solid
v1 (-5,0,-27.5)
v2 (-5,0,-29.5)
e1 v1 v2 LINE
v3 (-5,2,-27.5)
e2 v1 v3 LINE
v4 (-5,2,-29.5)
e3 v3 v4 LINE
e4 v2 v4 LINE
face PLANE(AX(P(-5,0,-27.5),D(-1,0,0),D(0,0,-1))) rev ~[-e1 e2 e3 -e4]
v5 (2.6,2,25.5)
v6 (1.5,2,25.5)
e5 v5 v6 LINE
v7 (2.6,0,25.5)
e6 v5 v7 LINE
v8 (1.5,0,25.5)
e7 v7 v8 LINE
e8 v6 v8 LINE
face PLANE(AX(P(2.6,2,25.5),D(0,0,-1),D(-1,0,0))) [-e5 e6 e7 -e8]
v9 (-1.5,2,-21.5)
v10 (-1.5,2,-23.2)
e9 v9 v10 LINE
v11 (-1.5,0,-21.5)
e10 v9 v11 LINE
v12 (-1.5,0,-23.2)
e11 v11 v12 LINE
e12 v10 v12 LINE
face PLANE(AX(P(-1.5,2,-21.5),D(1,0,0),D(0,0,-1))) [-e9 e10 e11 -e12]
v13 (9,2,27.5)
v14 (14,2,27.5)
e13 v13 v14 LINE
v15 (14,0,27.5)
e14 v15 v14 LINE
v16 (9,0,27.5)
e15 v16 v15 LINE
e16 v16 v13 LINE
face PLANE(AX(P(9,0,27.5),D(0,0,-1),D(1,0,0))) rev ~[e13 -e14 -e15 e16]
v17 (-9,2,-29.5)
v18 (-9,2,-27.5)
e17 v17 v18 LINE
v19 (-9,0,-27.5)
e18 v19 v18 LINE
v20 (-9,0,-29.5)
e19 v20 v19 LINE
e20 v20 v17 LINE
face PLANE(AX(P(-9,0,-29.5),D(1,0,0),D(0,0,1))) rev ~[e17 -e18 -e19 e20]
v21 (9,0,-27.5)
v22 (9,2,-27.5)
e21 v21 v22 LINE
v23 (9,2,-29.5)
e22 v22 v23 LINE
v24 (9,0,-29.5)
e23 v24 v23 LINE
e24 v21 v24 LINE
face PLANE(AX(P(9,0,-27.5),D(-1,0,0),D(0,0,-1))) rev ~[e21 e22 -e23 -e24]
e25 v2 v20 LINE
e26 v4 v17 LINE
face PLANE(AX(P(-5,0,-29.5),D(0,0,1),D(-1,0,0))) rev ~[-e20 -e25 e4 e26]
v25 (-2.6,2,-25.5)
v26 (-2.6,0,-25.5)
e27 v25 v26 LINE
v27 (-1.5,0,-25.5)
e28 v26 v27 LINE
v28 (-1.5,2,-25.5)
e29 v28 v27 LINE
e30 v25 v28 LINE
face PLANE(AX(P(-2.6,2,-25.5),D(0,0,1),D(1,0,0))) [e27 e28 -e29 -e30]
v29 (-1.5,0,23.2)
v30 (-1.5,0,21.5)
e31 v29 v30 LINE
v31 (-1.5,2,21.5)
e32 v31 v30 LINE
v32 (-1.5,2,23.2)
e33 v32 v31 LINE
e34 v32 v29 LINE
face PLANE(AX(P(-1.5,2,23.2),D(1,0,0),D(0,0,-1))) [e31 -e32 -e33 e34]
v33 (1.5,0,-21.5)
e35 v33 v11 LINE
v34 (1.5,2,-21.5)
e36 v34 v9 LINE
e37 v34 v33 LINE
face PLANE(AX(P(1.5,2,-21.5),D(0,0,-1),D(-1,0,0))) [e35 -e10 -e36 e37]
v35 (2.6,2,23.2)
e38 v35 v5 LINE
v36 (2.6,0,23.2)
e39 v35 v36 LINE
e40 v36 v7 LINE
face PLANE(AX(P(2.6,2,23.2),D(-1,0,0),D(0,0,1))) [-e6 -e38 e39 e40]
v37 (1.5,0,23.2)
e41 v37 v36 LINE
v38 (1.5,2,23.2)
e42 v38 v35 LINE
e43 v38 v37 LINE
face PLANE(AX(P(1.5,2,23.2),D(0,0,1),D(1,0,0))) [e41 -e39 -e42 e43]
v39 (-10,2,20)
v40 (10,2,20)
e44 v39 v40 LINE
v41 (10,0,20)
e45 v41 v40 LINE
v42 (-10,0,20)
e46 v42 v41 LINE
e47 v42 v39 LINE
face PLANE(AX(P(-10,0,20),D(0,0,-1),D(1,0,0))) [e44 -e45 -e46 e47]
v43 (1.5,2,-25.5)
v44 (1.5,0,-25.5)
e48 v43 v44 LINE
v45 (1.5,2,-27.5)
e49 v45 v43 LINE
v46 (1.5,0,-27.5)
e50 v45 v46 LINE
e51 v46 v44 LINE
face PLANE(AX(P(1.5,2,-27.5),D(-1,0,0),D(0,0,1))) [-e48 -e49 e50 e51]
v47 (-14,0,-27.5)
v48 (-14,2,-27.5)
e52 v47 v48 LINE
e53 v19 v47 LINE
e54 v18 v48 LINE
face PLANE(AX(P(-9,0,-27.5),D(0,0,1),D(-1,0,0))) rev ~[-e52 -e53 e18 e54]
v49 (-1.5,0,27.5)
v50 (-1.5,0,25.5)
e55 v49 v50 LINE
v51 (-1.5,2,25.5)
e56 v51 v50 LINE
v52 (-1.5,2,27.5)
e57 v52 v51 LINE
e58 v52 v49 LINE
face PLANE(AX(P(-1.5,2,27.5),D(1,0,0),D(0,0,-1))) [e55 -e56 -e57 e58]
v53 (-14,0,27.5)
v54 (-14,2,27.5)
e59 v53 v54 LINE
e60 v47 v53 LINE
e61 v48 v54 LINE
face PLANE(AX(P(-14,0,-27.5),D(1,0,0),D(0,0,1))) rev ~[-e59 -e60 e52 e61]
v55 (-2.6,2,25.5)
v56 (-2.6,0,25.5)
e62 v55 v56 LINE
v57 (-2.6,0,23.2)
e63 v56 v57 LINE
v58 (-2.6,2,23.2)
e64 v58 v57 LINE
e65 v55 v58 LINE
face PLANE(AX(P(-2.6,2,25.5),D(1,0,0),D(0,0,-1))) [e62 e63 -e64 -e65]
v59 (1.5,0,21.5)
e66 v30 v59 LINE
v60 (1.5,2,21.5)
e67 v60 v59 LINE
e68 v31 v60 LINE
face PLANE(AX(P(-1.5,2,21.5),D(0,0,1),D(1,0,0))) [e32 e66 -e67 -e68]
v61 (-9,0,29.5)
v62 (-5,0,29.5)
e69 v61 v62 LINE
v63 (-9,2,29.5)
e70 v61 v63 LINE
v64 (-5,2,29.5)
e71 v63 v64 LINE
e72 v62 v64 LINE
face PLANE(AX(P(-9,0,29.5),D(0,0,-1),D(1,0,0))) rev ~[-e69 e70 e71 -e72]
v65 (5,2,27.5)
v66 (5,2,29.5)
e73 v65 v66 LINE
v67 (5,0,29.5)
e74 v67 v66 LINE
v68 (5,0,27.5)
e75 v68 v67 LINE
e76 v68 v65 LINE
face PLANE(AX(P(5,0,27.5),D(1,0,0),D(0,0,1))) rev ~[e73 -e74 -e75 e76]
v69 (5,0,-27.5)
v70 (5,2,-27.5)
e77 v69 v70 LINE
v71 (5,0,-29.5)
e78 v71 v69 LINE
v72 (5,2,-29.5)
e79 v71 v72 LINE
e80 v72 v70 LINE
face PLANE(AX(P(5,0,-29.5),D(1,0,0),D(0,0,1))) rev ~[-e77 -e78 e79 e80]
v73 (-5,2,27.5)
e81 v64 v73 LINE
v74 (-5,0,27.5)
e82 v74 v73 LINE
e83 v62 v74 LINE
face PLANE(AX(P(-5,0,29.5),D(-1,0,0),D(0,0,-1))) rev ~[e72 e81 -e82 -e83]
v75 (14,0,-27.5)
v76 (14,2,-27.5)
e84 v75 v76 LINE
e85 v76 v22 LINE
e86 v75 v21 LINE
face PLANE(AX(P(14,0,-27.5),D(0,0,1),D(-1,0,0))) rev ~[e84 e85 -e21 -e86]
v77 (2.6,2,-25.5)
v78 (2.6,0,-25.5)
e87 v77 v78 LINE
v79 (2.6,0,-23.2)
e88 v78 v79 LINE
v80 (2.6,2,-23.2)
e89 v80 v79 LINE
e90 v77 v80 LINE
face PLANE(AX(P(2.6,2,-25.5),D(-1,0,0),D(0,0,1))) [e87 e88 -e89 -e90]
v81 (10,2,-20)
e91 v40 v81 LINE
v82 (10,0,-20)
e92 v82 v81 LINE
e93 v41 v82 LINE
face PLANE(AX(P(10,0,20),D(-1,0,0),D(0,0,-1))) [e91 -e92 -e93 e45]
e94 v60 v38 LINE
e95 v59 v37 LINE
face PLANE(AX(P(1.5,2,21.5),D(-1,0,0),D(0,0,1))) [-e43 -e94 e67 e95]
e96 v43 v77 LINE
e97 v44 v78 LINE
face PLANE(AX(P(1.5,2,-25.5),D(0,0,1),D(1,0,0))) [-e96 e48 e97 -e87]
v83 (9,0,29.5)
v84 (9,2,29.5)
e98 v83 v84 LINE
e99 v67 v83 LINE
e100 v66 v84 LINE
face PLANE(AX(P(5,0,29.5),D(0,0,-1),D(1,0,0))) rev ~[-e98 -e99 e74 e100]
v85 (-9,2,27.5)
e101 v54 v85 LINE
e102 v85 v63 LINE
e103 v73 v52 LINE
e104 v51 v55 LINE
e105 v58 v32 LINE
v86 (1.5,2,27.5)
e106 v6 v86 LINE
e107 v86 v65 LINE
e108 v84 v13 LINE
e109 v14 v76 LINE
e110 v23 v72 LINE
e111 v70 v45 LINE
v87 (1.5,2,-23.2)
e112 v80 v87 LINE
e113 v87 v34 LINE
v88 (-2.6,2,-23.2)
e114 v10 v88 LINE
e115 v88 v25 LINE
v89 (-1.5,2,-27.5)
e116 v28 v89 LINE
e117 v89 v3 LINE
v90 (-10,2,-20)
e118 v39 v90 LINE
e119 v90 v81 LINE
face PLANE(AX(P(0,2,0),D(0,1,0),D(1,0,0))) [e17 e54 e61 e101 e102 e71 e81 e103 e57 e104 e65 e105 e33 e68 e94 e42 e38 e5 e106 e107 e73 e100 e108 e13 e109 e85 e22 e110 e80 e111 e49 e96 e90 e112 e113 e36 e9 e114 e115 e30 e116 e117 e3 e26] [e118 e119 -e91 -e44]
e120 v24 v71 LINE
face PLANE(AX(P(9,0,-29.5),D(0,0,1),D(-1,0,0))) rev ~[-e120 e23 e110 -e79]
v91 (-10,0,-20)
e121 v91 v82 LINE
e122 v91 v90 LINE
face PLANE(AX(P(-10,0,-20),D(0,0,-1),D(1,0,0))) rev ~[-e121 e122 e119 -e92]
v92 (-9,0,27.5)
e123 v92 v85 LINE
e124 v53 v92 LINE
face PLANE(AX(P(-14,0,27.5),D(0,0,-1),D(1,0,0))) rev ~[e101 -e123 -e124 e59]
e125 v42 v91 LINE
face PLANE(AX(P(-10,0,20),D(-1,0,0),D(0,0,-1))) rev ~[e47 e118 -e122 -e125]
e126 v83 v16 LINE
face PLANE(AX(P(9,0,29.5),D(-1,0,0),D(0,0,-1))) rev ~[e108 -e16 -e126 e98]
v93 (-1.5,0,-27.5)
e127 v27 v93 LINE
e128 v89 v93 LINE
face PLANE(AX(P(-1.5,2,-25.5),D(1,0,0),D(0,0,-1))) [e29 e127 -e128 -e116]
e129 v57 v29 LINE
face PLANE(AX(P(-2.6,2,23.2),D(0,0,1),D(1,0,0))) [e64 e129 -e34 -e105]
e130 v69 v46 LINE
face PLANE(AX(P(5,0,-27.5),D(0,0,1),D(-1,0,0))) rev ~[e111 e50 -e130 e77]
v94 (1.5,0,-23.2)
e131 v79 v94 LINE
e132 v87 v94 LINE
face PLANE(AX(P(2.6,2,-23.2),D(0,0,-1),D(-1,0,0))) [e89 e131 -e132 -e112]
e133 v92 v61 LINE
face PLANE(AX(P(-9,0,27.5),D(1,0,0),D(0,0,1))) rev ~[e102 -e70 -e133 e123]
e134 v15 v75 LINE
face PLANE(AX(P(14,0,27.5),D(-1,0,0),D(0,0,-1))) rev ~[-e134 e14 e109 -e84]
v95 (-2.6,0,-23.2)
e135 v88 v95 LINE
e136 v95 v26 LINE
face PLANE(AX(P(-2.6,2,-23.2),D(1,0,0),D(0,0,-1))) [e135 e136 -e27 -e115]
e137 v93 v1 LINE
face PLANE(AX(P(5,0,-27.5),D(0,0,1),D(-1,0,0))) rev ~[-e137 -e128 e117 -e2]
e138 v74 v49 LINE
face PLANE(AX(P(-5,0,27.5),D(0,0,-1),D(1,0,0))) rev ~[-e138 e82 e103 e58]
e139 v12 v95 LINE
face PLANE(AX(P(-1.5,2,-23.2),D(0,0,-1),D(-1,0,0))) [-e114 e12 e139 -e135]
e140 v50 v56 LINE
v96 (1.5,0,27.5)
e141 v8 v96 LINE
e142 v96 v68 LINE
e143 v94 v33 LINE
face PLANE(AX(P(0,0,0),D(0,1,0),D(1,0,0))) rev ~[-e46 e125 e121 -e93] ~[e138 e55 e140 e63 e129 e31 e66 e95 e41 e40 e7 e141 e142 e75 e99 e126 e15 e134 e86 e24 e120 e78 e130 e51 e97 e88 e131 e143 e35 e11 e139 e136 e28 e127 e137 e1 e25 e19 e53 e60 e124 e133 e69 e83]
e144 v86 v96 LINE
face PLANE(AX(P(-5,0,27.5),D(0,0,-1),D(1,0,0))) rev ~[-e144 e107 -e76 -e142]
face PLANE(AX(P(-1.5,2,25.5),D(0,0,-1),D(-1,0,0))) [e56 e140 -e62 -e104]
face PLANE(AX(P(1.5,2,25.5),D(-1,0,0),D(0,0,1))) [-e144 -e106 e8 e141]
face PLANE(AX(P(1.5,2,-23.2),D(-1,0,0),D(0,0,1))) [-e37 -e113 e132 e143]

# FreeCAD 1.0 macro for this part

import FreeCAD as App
import Part
import Sketcher

V = App.Vector
Q = App.Units.Quantity

doc = App.newDocument("Part")
body = doc.addObject("PartDesign::Body", "Body")

sketch1 = body.newObject("Sketcher::SketchObject", "Sketch")
sketch1.AttachmentSupport = (doc.getObject("XZ_Plane"), [""])
sketch1.MapMode = "FlatFace"
sketch1.addGeometry([
    Part.LineSegment(V(-14, 27.5, 0), V(-9, 27.5, 0)),
    Part.LineSegment(V(-9, 27.5, 0), V(-9, 29.5, 0)),
    Part.LineSegment(V(-9, 29.5, 0), V(-5, 29.5, 0)),
    Part.LineSegment(V(-5, 29.5, 0), V(-5, 27.5, 0)),
    Part.LineSegment(V(-5, 27.5, 0), V(5, 27.5, 0)),
    Part.LineSegment(V(5, 27.5, 0), V(5, 29.5, 0)),
    Part.LineSegment(V(5, 29.5, 0), V(9, 29.5, 0)),
    Part.LineSegment(V(9, 29.5, 0), V(9, 27.5, 0)),
    Part.LineSegment(V(9, 27.5, 0), V(14, 27.5, 0)),
    Part.LineSegment(V(14, 27.5, 0), V(14, -27.5, 0)),
    Part.LineSegment(V(14, -27.5, 0), V(9, -27.5, 0)),
    Part.LineSegment(V(9, -27.5, 0), V(9, -29.5, 0)),
    Part.LineSegment(V(9, -29.5, 0), V(5, -29.5, 0)),
    Part.LineSegment(V(5, -29.5, 0), V(5, -27.5, 0)),
    Part.LineSegment(V(5, -27.5, 0), V(-5, -27.5, 0)),
    Part.LineSegment(V(-5, -27.5, 0), V(-5, -29.5, 0)),
    Part.LineSegment(V(-5, -29.5, 0), V(-9, -29.5, 0)),
    Part.LineSegment(V(-9, -29.5, 0), V(-9, -27.5, 0)),
    Part.LineSegment(V(-9, -27.5, 0), V(-14, -27.5, 0)),
    Part.LineSegment(V(-14, -27.5, 0), V(-14, 27.5, 0)),
    Part.LineSegment(V(10, 20, 0), V(-10, 20, 0)),
    Part.LineSegment(V(-10, 20, 0), V(-10, -20, 0)),
    Part.LineSegment(V(-10, -20, 0), V(10, -20, 0)),
    Part.LineSegment(V(10, -20, 0), V(10, 20, 0)),
], False)
sketch1.addConstraint([
    Sketcher.Constraint("Coincident", 0, 2, 1, 1),
    Sketcher.Constraint("Coincident", 1, 2, 2, 1),
    Sketcher.Constraint("Coincident", 2, 2, 3, 1),
    Sketcher.Constraint("Coincident", 3, 2, 4, 1),
    Sketcher.Constraint("Coincident", 4, 2, 5, 1),
    Sketcher.Constraint("Coincident", 5, 2, 6, 1),
    Sketcher.Constraint("Coincident", 6, 2, 7, 1),
    Sketcher.Constraint("Coincident", 7, 2, 8, 1),
    Sketcher.Constraint("Coincident", 8, 2, 9, 1),
    Sketcher.Constraint("Coincident", 9, 2, 10, 1),
    Sketcher.Constraint("Coincident", 10, 2, 11, 1),
    Sketcher.Constraint("Coincident", 11, 2, 12, 1),
    Sketcher.Constraint("Coincident", 12, 2, 13, 1),
    Sketcher.Constraint("Coincident", 13, 2, 14, 1),
    Sketcher.Constraint("Coincident", 14, 2, 15, 1),
    Sketcher.Constraint("Coincident", 15, 2, 16, 1),
    Sketcher.Constraint("Coincident", 16, 2, 17, 1),
    Sketcher.Constraint("Coincident", 17, 2, 18, 1),
    Sketcher.Constraint("Coincident", 18, 2, 19, 1),
    Sketcher.Constraint("Coincident", 19, 2, 0, 1),
    Sketcher.Constraint("Coincident", 20, 2, 21, 1),
    Sketcher.Constraint("Coincident", 21, 2, 22, 1),
    Sketcher.Constraint("Coincident", 22, 2, 23, 1),
    Sketcher.Constraint("Coincident", 23, 2, 20, 1),
    Sketcher.Constraint("Horizontal", 0),
    Sketcher.Constraint("Vertical", 1),
    Sketcher.Constraint("Horizontal", 2),
    Sketcher.Constraint("Vertical", 3),
    Sketcher.Constraint("Horizontal", 4),
    Sketcher.Constraint("Vertical", 5),
    Sketcher.Constraint("Horizontal", 6),
    Sketcher.Constraint("Vertical", 7),
    Sketcher.Constraint("Horizontal", 8),
    Sketcher.Constraint("Vertical", 9),
    Sketcher.Constraint("Horizontal", 10),
    Sketcher.Constraint("Vertical", 11),
    Sketcher.Constraint("Horizontal", 12),
    Sketcher.Constraint("Vertical", 13),
    Sketcher.Constraint("Horizontal", 14),
    Sketcher.Constraint("Vertical", 15),
    Sketcher.Constraint("Horizontal", 16),
    Sketcher.Constraint("Vertical", 17),
    Sketcher.Constraint("Horizontal", 18),
    Sketcher.Constraint("Vertical", 19),
    Sketcher.Constraint("Horizontal", 20),
    Sketcher.Constraint("Vertical", 21),
    Sketcher.Constraint("Horizontal", 22),
    Sketcher.Constraint("Vertical", 23),
    Sketcher.Constraint("Symmetric", 0, 2, 10, 2, -1, 1),
    Sketcher.Constraint("Symmetric", 2, 2, 12, 2, -1, 1),
    Sketcher.Constraint("Symmetric", 4, 2, 14, 2, -1, 1),
    Sketcher.Constraint("Symmetric", 6, 2, 16, 2, -1, 1),
    Sketcher.Constraint("Symmetric", 8, 2, 18, 2, -1, 1),
    Sketcher.Constraint("Symmetric", 20, 2, 22, 2, -1, 1),
    Sketcher.Constraint("Symmetric", 2, 2, 5, 2, -2),
    Sketcher.Constraint("Symmetric", 0, 2, 7, 2, -2),
    Sketcher.Constraint("Horizontal", 0, 2, 3, 2),
    Sketcher.Constraint("DistanceX", 0, 1, 0, 2, Q("5 mm")),
    Sketcher.Constraint("DistanceX", 2, 1, 2, 2, Q("4 mm")),
    Sketcher.Constraint("DistanceX", 4, 1, 4, 2, Q("10 mm")),
    Sketcher.Constraint("DistanceX", 20, 2, 20, 1, Q("20 mm")),
    Sketcher.Constraint("DistanceY", 1, 1, 1, 2, Q("2 mm")),
    Sketcher.Constraint("DistanceY", 9, 2, 9, 1, Q("55 mm")),
    Sketcher.Constraint("DistanceY", 21, 2, 21, 1, Q("40 mm")),
])
pad1 = body.newObject("PartDesign::Pad", "Pad")
pad1.Profile = sketch1
pad1.Length = 2
pad1.Reversed = True

sketch2 = body.newObject("Sketcher::SketchObject", "Sketch001")
sketch2.AttachmentSupport = (doc.getObject("XZ_Plane"), [""])
sketch2.MapMode = "FlatFace"
sketch2.AttachmentOffset = App.Placement(V(0, 0, -2), App.Rotation())
sketch2.addGeometry([
    Part.LineSegment(V(-2.6, -23.2, 0), V(-1.5, -23.2, 0)),
    Part.LineSegment(V(-1.5, -23.2, 0), V(-1.5, -21.5, 0)),
    Part.LineSegment(V(-1.5, -21.5, 0), V(1.5, -21.5, 0)),
    Part.LineSegment(V(1.5, -21.5, 0), V(1.5, -23.2, 0)),
    Part.LineSegment(V(1.5, -23.2, 0), V(2.6, -23.2, 0)),
    Part.LineSegment(V(2.6, -23.2, 0), V(2.6, -25.5, 0)),
    Part.LineSegment(V(2.6, -25.5, 0), V(1.5, -25.5, 0)),
    Part.LineSegment(V(1.5, -25.5, 0), V(1.5, -27.5, 0)),
    Part.LineSegment(V(1.5, -27.5, 0), V(-1.5, -27.5, 0)),
    Part.LineSegment(V(-1.5, -27.5, 0), V(-1.5, -25.5, 0)),
    Part.LineSegment(V(-1.5, -25.5, 0), V(-2.6, -25.5, 0)),
    Part.LineSegment(V(-2.6, -25.5, 0), V(-2.6, -23.2, 0)),
    Part.LineSegment(V(1.5, 27.5, 0), V(1.5, 25.5, 0)),
    Part.LineSegment(V(1.5, 25.5, 0), V(2.6, 25.5, 0)),
    Part.LineSegment(V(2.6, 25.5, 0), V(2.6, 23.2, 0)),
    Part.LineSegment(V(2.6, 23.2, 0), V(1.5, 23.2, 0)),
    Part.LineSegment(V(1.5, 23.2, 0), V(1.5, 21.5, 0)),
    Part.LineSegment(V(1.5, 21.5, 0), V(-1.5, 21.5, 0)),
    Part.LineSegment(V(-1.5, 21.5, 0), V(-1.5, 23.2, 0)),
    Part.LineSegment(V(-1.5, 23.2, 0), V(-2.6, 23.2, 0)),
    Part.LineSegment(V(-2.6, 23.2, 0), V(-2.6, 25.5, 0)),
    Part.LineSegment(V(-2.6, 25.5, 0), V(-1.5, 25.5, 0)),
    Part.LineSegment(V(-1.5, 25.5, 0), V(-1.5, 27.5, 0)),
    Part.LineSegment(V(-1.5, 27.5, 0), V(1.5, 27.5, 0)),
], False)
sketch2.addConstraint([
    Sketcher.Constraint("Coincident", 0, 2, 1, 1),
    Sketcher.Constraint("Coincident", 1, 2, 2, 1),
    Sketcher.Constraint("Coincident", 2, 2, 3, 1),
    Sketcher.Constraint("Coincident", 3, 2, 4, 1),
    Sketcher.Constraint("Coincident", 4, 2, 5, 1),
    Sketcher.Constraint("Coincident", 5, 2, 6, 1),
    Sketcher.Constraint("Coincident", 6, 2, 7, 1),
    Sketcher.Constraint("Coincident", 7, 2, 8, 1),
    Sketcher.Constraint("Coincident", 8, 2, 9, 1),
    Sketcher.Constraint("Coincident", 9, 2, 10, 1),
    Sketcher.Constraint("Coincident", 10, 2, 11, 1),
    Sketcher.Constraint("Coincident", 11, 2, 0, 1),
    Sketcher.Constraint("Coincident", 12, 2, 13, 1),
    Sketcher.Constraint("Coincident", 13, 2, 14, 1),
    Sketcher.Constraint("Coincident", 14, 2, 15, 1),
    Sketcher.Constraint("Coincident", 15, 2, 16, 1),
    Sketcher.Constraint("Coincident", 16, 2, 17, 1),
    Sketcher.Constraint("Coincident", 17, 2, 18, 1),
    Sketcher.Constraint("Coincident", 18, 2, 19, 1),
    Sketcher.Constraint("Coincident", 19, 2, 20, 1),
    Sketcher.Constraint("Coincident", 20, 2, 21, 1),
    Sketcher.Constraint("Coincident", 21, 2, 22, 1),
    Sketcher.Constraint("Coincident", 22, 2, 23, 1),
    Sketcher.Constraint("Coincident", 23, 2, 12, 1),
    Sketcher.Constraint("Horizontal", 0),
    Sketcher.Constraint("Vertical", 1),
    Sketcher.Constraint("Horizontal", 2),
    Sketcher.Constraint("Vertical", 3),
    Sketcher.Constraint("Horizontal", 4),
    Sketcher.Constraint("Vertical", 5),
    Sketcher.Constraint("Horizontal", 6),
    Sketcher.Constraint("Vertical", 7),
    Sketcher.Constraint("Horizontal", 8),
    Sketcher.Constraint("Vertical", 9),
    Sketcher.Constraint("Horizontal", 10),
    Sketcher.Constraint("Vertical", 11),
    Sketcher.Constraint("Vertical", 12),
    Sketcher.Constraint("Horizontal", 13),
    Sketcher.Constraint("Vertical", 14),
    Sketcher.Constraint("Horizontal", 15),
    Sketcher.Constraint("Vertical", 16),
    Sketcher.Constraint("Horizontal", 17),
    Sketcher.Constraint("Vertical", 18),
    Sketcher.Constraint("Horizontal", 19),
    Sketcher.Constraint("Vertical", 20),
    Sketcher.Constraint("Horizontal", 21),
    Sketcher.Constraint("Vertical", 22),
    Sketcher.Constraint("Horizontal", 23),
    Sketcher.Constraint("Symmetric", 9, 2, 12, 2, -1, 1),
    Sketcher.Constraint("Symmetric", 11, 2, 14, 2, -1, 1),
    Sketcher.Constraint("Symmetric", 1, 2, 16, 2, -1, 1),
    Sketcher.Constraint("Symmetric", 3, 2, 18, 2, -1, 1),
    Sketcher.Constraint("Symmetric", 5, 2, 20, 2, -1, 1),
    Sketcher.Constraint("Symmetric", 7, 2, 22, 2, -1, 1),
    Sketcher.Constraint("Symmetric", 0, 2, 3, 2, -2),
    Sketcher.Constraint("Symmetric", 6, 2, 9, 2, -2),
    Sketcher.Constraint("Vertical", 3, 2, 6, 2),
    Sketcher.Constraint("Vertical", 5, 2, 13, 2),
    Sketcher.Constraint("DistanceX", 2, 1, 2, 2, Q("3 mm")),
    Sketcher.Constraint("DistanceY", 7, 2, 7, 1, Q("2 mm")),
    Sketcher.Constraint("DistanceX", 0, 1, 0, 2, Q("1.1 mm")),
    Sketcher.Constraint("DistanceY", 1, 1, 1, 2, Q("1.7 mm")),
    Sketcher.Constraint("DistanceY", 5, 2, 5, 1, Q("2.3 mm")),
    Sketcher.Constraint("DistanceY", 2, 2, 12, 2, Q("47 mm")),
])
pocket1 = body.newObject("PartDesign::Pocket", "Pocket")
pocket1.Profile = sketch2
pocket1.Length = 2
pocket1.Reversed = True

doc.recompute()
